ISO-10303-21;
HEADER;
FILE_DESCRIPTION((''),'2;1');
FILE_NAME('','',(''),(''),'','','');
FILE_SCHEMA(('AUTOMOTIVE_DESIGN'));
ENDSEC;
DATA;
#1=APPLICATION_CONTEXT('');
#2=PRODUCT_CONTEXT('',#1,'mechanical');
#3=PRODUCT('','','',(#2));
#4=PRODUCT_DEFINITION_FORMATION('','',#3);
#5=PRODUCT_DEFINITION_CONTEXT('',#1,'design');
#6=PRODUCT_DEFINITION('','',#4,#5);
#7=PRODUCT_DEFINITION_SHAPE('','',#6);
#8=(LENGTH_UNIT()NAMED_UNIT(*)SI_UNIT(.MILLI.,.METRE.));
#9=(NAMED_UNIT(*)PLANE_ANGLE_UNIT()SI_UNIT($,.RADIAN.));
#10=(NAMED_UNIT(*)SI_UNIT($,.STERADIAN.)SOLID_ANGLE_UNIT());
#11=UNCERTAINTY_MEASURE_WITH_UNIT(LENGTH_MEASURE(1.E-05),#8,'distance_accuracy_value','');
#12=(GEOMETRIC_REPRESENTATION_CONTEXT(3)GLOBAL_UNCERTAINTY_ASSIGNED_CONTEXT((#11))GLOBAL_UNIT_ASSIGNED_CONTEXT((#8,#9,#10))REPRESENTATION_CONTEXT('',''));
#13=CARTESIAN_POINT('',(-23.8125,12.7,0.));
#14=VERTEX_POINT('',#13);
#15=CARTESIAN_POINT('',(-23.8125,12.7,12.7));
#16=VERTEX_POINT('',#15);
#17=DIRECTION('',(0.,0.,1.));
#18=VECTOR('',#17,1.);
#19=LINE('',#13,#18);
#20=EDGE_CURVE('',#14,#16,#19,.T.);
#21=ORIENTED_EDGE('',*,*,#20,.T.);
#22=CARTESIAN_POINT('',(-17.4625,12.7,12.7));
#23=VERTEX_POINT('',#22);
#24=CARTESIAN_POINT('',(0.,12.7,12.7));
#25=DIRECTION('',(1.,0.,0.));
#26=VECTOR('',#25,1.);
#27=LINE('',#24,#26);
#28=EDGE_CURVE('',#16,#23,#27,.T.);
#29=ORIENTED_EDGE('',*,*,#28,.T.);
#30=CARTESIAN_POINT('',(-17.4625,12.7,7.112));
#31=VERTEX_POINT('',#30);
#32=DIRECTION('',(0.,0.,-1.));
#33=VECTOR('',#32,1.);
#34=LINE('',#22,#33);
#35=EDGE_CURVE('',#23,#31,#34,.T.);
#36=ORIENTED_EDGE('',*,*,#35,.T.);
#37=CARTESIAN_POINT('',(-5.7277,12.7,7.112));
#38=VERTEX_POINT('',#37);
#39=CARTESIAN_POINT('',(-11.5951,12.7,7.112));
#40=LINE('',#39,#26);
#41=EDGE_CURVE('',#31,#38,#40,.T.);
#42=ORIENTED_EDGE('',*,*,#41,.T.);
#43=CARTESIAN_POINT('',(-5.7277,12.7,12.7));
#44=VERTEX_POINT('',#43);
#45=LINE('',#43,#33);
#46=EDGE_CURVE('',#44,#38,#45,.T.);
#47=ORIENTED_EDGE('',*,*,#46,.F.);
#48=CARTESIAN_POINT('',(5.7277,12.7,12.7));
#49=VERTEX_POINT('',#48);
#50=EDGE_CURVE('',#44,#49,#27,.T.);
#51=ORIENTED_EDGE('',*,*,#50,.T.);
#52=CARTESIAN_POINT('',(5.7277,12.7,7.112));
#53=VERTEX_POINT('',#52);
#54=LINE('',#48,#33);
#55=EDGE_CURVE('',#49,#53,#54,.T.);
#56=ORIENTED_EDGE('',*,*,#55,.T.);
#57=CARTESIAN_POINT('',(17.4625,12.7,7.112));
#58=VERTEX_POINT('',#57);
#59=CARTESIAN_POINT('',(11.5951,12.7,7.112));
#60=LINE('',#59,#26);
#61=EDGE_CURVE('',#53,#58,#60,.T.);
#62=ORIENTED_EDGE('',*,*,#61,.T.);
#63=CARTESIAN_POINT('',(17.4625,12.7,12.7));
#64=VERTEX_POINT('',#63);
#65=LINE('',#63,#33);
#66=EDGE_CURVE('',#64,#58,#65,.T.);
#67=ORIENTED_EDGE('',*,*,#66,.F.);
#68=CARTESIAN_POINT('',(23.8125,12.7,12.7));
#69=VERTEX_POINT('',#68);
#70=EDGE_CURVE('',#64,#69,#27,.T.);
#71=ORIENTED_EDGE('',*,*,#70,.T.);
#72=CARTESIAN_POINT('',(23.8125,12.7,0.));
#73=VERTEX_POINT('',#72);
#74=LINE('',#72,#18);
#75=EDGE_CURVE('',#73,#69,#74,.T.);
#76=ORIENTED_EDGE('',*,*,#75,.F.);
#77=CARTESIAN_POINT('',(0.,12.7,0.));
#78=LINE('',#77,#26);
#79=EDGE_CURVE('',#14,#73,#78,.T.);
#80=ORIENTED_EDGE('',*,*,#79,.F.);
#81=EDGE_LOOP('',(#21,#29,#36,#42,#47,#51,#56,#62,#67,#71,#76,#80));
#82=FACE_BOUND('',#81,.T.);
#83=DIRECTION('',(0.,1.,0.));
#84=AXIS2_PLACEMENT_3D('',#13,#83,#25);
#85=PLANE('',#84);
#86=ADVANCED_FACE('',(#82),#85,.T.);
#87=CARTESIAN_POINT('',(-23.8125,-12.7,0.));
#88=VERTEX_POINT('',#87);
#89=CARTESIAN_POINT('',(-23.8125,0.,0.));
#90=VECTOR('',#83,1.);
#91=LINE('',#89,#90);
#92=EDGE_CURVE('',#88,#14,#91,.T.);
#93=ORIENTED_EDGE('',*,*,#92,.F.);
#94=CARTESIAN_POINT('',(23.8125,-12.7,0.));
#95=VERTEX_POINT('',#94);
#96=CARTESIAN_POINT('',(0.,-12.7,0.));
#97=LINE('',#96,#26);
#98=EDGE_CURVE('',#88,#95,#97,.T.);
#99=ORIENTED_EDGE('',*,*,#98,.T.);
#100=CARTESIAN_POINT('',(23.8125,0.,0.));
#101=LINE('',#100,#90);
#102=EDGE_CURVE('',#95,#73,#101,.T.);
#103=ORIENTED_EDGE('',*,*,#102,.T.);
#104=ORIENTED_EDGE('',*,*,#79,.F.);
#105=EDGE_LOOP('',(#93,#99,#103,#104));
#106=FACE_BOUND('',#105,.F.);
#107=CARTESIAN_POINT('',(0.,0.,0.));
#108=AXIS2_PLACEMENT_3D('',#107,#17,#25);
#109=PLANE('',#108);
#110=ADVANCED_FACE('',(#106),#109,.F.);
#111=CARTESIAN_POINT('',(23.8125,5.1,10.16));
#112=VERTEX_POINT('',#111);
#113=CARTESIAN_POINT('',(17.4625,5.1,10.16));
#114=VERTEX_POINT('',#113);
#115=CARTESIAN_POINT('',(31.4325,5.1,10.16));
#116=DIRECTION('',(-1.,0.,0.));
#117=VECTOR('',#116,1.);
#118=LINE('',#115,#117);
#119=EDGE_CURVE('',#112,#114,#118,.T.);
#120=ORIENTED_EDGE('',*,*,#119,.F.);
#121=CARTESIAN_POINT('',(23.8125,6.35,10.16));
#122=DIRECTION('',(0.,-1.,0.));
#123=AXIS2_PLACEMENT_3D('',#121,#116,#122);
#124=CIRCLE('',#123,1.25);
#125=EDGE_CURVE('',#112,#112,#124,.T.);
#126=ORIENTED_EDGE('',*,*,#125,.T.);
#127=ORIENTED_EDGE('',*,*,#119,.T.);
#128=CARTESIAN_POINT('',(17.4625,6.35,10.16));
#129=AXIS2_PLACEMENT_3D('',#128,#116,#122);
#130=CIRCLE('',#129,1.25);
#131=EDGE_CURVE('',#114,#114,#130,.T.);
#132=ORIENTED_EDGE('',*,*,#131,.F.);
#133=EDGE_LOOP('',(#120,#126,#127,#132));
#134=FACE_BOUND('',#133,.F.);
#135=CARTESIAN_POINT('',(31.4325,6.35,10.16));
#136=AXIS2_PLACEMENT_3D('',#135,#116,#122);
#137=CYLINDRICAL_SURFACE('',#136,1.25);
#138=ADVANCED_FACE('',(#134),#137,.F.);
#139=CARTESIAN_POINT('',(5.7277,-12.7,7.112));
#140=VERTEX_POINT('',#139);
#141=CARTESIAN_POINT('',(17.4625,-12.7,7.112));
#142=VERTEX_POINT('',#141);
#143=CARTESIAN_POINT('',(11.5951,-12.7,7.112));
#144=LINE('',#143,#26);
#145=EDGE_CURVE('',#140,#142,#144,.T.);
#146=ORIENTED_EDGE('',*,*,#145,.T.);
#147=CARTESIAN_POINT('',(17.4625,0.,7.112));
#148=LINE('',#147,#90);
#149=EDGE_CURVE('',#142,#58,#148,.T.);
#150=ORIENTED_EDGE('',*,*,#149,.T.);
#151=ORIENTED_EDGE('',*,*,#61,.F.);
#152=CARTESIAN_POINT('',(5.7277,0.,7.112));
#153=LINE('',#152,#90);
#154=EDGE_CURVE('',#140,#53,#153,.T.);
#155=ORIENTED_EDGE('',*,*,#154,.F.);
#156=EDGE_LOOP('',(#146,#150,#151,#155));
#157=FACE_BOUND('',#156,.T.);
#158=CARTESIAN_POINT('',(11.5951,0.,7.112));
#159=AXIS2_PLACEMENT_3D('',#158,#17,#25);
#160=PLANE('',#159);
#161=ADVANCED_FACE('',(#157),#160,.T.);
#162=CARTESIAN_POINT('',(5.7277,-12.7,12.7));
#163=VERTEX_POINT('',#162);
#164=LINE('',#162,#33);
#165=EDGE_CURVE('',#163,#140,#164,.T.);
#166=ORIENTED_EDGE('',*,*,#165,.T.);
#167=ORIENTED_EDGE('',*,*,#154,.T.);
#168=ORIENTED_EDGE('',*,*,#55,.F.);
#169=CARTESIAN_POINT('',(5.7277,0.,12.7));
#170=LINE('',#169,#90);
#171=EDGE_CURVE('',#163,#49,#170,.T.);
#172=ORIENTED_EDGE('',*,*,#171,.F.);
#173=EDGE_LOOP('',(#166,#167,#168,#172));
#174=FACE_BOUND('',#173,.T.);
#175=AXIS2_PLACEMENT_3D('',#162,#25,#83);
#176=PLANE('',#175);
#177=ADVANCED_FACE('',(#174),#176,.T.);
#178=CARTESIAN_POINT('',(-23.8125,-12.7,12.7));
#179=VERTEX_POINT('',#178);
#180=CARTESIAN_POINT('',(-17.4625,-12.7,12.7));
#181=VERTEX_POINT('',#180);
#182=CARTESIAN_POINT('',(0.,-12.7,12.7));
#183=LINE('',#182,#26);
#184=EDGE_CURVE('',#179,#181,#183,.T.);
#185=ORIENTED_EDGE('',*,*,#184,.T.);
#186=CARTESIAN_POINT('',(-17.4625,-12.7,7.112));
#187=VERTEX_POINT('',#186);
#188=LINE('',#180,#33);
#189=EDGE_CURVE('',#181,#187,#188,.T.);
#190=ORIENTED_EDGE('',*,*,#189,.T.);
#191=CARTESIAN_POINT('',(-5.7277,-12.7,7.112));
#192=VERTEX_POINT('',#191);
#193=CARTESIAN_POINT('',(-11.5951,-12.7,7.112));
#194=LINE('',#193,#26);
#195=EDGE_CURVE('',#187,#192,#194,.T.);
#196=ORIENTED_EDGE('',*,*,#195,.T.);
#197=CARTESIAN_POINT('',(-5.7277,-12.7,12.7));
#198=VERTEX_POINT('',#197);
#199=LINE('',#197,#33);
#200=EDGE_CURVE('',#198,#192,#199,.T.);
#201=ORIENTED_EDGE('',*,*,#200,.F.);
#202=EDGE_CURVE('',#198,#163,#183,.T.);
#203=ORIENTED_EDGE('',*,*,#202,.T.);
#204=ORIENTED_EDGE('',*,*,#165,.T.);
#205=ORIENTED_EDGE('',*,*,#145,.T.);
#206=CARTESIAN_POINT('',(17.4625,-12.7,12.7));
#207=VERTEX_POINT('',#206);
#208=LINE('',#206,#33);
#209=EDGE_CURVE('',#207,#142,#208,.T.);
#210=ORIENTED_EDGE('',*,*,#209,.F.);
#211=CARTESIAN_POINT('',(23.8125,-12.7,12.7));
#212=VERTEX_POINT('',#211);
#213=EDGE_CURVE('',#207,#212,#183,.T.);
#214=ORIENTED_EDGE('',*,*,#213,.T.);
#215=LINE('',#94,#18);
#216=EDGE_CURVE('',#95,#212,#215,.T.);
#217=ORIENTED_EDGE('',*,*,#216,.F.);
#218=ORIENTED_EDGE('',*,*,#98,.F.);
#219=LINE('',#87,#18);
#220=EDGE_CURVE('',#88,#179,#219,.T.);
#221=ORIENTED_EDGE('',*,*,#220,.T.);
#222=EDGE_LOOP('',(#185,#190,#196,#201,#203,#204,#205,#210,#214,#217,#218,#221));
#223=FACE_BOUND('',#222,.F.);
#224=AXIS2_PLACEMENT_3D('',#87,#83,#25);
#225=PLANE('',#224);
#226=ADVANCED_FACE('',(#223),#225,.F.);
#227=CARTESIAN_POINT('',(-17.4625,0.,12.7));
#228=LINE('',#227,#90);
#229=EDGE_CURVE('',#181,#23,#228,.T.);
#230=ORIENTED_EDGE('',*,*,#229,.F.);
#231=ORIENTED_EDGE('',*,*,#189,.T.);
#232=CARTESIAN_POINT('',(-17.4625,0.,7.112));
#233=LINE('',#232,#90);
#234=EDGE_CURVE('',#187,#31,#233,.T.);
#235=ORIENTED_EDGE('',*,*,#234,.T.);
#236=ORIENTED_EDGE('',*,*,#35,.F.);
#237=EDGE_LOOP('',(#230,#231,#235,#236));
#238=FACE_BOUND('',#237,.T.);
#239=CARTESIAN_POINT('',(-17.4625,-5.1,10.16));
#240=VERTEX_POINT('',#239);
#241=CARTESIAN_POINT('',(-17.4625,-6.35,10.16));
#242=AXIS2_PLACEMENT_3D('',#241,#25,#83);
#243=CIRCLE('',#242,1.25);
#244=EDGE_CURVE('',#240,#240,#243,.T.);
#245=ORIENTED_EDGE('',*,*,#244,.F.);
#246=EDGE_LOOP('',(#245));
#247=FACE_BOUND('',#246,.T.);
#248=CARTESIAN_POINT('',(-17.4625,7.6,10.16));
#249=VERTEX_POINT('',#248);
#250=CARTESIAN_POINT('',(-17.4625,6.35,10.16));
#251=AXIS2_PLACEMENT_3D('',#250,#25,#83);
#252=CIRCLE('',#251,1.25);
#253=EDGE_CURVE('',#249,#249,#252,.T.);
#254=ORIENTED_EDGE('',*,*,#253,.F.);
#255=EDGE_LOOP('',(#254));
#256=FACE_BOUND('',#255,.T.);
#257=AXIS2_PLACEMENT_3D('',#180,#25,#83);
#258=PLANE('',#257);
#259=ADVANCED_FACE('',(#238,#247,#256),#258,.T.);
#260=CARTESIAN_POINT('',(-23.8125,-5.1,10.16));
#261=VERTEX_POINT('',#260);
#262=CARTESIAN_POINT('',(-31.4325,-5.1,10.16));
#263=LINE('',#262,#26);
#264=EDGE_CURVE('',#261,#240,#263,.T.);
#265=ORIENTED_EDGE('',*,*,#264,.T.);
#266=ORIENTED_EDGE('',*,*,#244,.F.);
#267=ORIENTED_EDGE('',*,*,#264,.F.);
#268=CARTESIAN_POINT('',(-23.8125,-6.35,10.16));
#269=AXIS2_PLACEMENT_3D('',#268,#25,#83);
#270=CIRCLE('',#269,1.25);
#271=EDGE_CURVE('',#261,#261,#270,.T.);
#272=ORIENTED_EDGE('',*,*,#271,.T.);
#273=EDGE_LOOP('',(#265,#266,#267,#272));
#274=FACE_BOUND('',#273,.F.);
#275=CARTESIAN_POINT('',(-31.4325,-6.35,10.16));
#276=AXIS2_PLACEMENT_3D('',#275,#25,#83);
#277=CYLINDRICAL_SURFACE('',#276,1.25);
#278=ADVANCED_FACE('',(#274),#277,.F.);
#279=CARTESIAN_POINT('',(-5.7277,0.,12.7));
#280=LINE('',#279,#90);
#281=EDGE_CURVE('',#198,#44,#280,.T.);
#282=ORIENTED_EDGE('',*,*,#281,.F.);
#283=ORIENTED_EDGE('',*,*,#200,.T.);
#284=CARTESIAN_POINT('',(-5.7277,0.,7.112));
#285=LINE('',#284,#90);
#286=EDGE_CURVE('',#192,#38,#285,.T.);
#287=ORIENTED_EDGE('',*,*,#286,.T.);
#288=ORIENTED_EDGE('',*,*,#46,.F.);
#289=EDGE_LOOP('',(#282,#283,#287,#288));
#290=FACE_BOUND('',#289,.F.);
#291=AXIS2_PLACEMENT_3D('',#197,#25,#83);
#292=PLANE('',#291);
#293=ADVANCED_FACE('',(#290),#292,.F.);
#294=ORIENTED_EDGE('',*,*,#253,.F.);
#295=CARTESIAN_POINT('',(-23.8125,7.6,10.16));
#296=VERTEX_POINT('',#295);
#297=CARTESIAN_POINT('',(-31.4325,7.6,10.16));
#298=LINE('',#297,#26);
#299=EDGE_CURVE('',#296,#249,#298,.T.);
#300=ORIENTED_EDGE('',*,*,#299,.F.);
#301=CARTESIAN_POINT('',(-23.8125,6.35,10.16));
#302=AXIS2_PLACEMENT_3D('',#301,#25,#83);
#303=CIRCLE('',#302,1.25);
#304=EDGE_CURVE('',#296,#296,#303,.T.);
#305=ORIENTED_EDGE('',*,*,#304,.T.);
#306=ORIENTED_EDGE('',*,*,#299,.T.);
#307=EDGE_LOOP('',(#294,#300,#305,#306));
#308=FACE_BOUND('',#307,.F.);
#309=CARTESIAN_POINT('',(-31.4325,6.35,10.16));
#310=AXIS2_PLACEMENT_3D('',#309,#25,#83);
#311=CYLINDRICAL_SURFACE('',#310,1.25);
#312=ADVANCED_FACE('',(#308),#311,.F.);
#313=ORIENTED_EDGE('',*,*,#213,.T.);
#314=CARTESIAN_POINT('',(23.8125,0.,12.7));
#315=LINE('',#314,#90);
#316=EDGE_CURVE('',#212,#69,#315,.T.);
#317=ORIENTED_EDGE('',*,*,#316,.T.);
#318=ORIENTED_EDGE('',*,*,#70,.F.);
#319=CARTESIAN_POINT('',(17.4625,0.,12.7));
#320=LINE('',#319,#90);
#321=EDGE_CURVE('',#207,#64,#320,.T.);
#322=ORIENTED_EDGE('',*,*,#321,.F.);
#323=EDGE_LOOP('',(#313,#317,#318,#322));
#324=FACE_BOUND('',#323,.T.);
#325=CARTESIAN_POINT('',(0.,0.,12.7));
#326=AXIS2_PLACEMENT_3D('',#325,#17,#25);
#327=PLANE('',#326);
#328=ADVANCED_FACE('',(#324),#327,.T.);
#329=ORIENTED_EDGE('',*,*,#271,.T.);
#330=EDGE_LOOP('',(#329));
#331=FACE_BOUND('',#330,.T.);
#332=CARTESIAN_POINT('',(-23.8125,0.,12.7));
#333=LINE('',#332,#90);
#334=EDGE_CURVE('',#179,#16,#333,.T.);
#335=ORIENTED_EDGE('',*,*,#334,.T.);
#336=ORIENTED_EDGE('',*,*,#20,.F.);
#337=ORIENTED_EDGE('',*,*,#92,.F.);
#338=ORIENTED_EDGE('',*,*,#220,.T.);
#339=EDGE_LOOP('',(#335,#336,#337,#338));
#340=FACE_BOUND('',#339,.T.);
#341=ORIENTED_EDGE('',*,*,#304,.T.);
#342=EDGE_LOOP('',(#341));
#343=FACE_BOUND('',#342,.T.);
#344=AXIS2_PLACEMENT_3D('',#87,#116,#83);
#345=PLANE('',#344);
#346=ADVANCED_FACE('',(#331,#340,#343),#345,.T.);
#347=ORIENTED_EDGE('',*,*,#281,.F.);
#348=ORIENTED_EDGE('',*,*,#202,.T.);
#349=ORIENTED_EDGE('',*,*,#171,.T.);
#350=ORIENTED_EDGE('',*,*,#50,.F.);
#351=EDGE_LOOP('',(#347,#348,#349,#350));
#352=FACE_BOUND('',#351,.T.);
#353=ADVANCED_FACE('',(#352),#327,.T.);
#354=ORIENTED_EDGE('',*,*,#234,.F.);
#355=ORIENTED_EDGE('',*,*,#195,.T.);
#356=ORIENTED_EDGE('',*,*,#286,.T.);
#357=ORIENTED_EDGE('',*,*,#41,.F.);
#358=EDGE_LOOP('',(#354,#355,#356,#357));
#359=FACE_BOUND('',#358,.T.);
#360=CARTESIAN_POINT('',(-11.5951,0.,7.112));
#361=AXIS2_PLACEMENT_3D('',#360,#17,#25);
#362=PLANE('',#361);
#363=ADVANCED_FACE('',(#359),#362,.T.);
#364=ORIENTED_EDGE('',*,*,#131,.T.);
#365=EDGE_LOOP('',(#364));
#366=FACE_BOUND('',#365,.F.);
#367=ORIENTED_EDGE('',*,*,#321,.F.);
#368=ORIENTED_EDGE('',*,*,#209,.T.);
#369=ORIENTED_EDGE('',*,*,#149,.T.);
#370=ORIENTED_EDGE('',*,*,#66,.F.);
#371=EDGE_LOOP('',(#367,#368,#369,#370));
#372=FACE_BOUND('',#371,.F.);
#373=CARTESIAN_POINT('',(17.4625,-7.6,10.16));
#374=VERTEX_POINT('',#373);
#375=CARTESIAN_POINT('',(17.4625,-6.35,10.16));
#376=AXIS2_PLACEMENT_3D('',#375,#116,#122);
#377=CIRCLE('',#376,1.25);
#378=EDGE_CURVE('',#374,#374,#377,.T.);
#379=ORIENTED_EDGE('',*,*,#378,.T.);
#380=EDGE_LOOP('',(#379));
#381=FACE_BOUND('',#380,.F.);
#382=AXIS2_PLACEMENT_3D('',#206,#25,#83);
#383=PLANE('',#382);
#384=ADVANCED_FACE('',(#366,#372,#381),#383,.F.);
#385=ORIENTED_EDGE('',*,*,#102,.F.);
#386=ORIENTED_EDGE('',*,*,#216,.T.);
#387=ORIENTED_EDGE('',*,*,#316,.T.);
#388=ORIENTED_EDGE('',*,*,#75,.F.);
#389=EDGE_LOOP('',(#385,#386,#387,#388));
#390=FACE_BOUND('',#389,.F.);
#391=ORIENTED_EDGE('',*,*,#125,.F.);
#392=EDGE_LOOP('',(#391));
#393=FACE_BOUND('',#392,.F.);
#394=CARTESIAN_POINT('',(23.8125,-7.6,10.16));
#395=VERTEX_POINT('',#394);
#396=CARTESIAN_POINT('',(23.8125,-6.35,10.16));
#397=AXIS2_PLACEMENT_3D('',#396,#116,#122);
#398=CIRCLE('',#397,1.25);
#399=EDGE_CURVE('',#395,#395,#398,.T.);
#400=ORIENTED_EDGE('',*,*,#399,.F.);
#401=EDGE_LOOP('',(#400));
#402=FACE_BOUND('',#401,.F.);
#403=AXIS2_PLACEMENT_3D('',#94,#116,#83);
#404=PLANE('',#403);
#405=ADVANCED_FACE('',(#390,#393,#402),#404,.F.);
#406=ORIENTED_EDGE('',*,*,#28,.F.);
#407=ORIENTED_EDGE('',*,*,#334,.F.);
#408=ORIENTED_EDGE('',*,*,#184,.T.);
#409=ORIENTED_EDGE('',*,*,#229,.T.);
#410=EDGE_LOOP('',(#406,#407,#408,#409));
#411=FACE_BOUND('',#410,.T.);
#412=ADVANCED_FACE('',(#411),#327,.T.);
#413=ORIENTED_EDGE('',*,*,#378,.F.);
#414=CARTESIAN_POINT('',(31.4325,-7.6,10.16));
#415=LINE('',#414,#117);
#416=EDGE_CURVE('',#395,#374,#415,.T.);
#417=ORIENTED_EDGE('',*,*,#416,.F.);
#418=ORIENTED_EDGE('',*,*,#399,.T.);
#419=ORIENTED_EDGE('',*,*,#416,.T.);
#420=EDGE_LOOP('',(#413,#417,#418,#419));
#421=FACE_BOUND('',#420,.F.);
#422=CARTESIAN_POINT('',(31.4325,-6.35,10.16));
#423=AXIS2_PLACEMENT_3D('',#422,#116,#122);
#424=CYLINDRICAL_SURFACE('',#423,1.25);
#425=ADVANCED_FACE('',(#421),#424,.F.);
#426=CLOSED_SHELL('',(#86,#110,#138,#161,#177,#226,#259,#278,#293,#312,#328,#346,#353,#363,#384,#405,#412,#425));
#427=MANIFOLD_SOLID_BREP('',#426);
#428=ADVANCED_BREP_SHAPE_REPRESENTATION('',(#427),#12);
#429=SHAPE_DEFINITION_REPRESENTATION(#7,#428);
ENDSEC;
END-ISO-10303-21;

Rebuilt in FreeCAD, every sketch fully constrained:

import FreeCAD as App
import Part
import Sketcher
from FreeCAD import Vector
Q = App.Units.Quantity


def add_polygon(sketch, points):
    """Adds a closed chain of lines whose ends are joined by coincident constraints."""
    first, n = sketch.GeometryCount, len(points)
    for a, b in zip(points, points[1:] + points[:1]):
        sketch.addGeometry(Part.LineSegment(App.Vector(*a, 0), App.Vector(*b, 0)), False)
    for i in range(n):
        sketch.addConstraint(Sketcher.Constraint("Coincident", first + i, 2, first + (i + 1) % n, 1))

doc = App.newDocument("Part")
body = doc.addObject("PartDesign::Body", "Body")

# Sketch on XY plane
sketch1 = doc.addObject("Sketcher::SketchObject", "Sketch")
body.addObject(sketch1)
sketch1.AttachmentSupport = (doc.XY_Plane, [""])
sketch1.MapMode = "FlatFace"
add_polygon(sketch1, [(-23.8125, 12.7), (-23.8125, -12.7), (23.8125, -12.7), (23.8125, 12.7)])  # lines 0-3
sketch1.addConstraint(Sketcher.Constraint("Vertical", 0))
sketch1.addConstraint(Sketcher.Constraint("Horizontal", 1))
sketch1.addConstraint(Sketcher.Constraint("Vertical", 2))
sketch1.addConstraint(Sketcher.Constraint("Horizontal", 3))
sketch1.addConstraint(Sketcher.Constraint("Symmetric", 0, 2, 2, 2, -1, 1))
sketch1.addConstraint(Sketcher.Constraint("DistanceY", 0, 2, 0, 1, Q("1 in")))
sketch1.addConstraint(Sketcher.Constraint("DistanceX", 1, 1, 1, 2, Q("1.875 in")))
pad1 = doc.addObject("PartDesign::Pad", "Pad")
body.addObject(pad1)
pad1.Profile = sketch1
pad1.Length = Q("0.5 in")

# Sketch on XY plane
sketch2 = doc.addObject("Sketcher::SketchObject", "Sketch001")
body.addObject(sketch2)
sketch2.AttachmentSupport = (doc.XY_Plane, [""])
sketch2.MapMode = "FlatFace"
sketch2.AttachmentOffset = App.Placement(Vector(0, 0, 0.5 * 25.4), App.Rotation())
add_polygon(sketch2, [(-17.4625, 12.7), (-17.4625, -12.7), (-5.7277, -12.7), (-5.7277, 12.7)])  # lines 0-3
add_polygon(sketch2, [(5.7277, 12.7), (5.7277, -12.7), (17.4625, -12.7), (17.4625, 12.7)])  # lines 4-7
sketch2.addConstraint(Sketcher.Constraint("Vertical", 0))
sketch2.addConstraint(Sketcher.Constraint("Horizontal", 1))
sketch2.addConstraint(Sketcher.Constraint("Vertical", 2))
sketch2.addConstraint(Sketcher.Constraint("Horizontal", 3))
sketch2.addConstraint(Sketcher.Constraint("Vertical", 4))
sketch2.addConstraint(Sketcher.Constraint("Horizontal", 5))
sketch2.addConstraint(Sketcher.Constraint("Vertical", 6))
sketch2.addConstraint(Sketcher.Constraint("Horizontal", 7))
sketch2.addConstraint(Sketcher.Constraint("Symmetric", 2, 2, 4, 2, -1, 1))
sketch2.addConstraint(Sketcher.Constraint("Symmetric", 0, 2, 6, 2, -1, 1))
sketch2.addConstraint(Sketcher.Constraint("Horizontal", 1, 2, 4, 2))
sketch2.addConstraint(Sketcher.Constraint("DistanceY", 0, 2, 0, 1, Q("1 in")))
sketch2.addConstraint(Sketcher.Constraint("DistanceX", 1, 1, 1, 2, Q("0.462 in")))
sketch2.addConstraint(Sketcher.Constraint("DistanceX", 0, 2, -1, 1, Q("0.6875 in")))
pocket1 = doc.addObject("PartDesign::Pocket", "Pocket")
body.addObject(pocket1)
pocket1.Profile = sketch2
pocket1.Length = Q("0.22 in")

# Sketch on YZ plane
sketch3 = doc.addObject("Sketcher::SketchObject", "Sketch002")
body.addObject(sketch3)
sketch3.AttachmentSupport = (doc.YZ_Plane, [""])
sketch3.MapMode = "FlatFace"
sketch3.AttachmentOffset = App.Placement(Vector(0, 0, -0.9375 * 25.4), App.Rotation())
sketch3.addGeometry(Part.Circle(Vector(-6.35, 10.16, 0), Vector(0, 0, 1), 1.25), False)
sketch3.addGeometry(Part.Circle(Vector(6.35, 10.16, 0), Vector(0, 0, 1), 1.25), False)
sketch3.addConstraint(Sketcher.Constraint("Equal", 0, 1))
sketch3.addConstraint(Sketcher.Constraint("Symmetric", 0, 3, 1, 3, -2))
sketch3.addConstraint(Sketcher.Constraint("DistanceY", -1, 1, 0, 3, Q("0.4 in")))
sketch3.addConstraint(Sketcher.Constraint("DistanceX", 0, 3, 1, 3, Q("0.5 in")))
sketch3.addConstraint(Sketcher.Constraint("Diameter", 0, 2.5))
doc.recompute()
hole = doc.addObject("PartDesign::Hole", "Hole")
body.addObject(hole)
hole.Profile = sketch3
hole.ThreadType = "None"
hole.Diameter = 2.5
hole.DepthType = "Dimension"
hole.Depth = Q("0.3 in")
hole.DrillPoint = "Angled"
hole.DrillPointAngle = 118
hole.Reversed = True

# Sketch on YZ plane
sketch4 = doc.addObject("Sketcher::SketchObject", "Sketch003")
body.addObject(sketch4)
sketch4.AttachmentSupport = (doc.YZ_Plane, [""])
sketch4.MapMode = "FlatFace"
sketch4.AttachmentOffset = App.Placement(Vector(0, 0, 0.9375 * 25.4), App.Rotation())
sketch4.addGeometry(Part.Circle(Vector(-6.35, 10.16, 0), Vector(0, 0, 1), 1.25), False)
sketch4.addGeometry(Part.Circle(Vector(6.35, 10.16, 0), Vector(0, 0, 1), 1.25), False)
sketch4.addConstraint(Sketcher.Constraint("Equal", 0, 1))
sketch4.addConstraint(Sketcher.Constraint("Symmetric", 0, 3, 1, 3, -2))
sketch4.addConstraint(Sketcher.Constraint("DistanceY", -1, 1, 0, 3, Q("0.4 in")))
sketch4.addConstraint(Sketcher.Constraint("DistanceX", 0, 3, 1, 3, Q("0.5 in")))
sketch4.addConstraint(Sketcher.Constraint("Diameter", 0, 2.5))
doc.recompute()
hole2 = doc.addObject("PartDesign::Hole", "Hole001")
body.addObject(hole2)
hole2.Profile = sketch4
hole2.ThreadType = "None"
hole2.Diameter = 2.5
hole2.DepthType = "Dimension"
hole2.Depth = Q("0.3 in")
hole2.DrillPoint = "Angled"
hole2.DrillPointAngle = 118

doc.recompute()
